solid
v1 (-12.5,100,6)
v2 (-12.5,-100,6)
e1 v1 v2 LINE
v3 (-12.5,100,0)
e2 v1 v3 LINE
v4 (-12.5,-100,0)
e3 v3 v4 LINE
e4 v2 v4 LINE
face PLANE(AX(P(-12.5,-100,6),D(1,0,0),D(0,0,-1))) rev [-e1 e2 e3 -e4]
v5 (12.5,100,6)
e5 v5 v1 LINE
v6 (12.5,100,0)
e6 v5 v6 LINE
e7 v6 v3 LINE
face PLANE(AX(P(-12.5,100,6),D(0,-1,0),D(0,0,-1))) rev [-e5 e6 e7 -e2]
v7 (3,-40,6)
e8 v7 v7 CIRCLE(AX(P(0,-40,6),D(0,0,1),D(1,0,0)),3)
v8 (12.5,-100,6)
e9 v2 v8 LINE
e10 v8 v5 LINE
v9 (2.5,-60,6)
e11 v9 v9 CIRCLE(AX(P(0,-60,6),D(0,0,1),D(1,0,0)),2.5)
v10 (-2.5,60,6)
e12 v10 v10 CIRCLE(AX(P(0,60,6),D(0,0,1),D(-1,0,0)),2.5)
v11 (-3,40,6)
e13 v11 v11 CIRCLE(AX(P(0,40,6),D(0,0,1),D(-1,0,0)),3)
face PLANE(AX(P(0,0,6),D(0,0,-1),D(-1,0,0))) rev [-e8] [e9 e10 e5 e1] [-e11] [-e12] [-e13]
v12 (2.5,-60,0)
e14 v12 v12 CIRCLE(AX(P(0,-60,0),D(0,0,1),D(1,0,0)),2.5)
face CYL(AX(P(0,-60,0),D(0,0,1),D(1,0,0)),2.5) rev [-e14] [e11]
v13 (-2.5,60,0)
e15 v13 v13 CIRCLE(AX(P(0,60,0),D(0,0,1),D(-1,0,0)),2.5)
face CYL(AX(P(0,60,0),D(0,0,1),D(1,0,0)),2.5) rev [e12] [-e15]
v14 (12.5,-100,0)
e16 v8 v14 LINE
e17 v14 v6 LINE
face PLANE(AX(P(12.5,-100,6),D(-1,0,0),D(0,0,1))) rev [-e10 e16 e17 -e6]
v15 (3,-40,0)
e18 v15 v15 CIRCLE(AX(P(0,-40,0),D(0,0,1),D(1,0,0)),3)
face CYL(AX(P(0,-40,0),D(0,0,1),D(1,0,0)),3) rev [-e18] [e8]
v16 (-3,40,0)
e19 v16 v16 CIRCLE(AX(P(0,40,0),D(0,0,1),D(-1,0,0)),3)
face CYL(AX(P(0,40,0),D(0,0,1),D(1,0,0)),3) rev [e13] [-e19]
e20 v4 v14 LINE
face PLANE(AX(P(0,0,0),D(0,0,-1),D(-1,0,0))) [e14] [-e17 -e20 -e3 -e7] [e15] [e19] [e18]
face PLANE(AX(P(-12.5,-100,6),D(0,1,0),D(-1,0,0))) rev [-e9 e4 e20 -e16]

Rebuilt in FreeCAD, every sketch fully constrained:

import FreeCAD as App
import Part
import Sketcher

V = App.Vector


def add_polygon(sketch, points):
    """Adds a closed chain of lines whose ends are joined by coincident constraints."""
    first, n = sketch.GeometryCount, len(points)
    for a, b in zip(points, points[1:] + points[:1]):
        sketch.addGeometry(Part.LineSegment(App.Vector(*a, 0), App.Vector(*b, 0)), False)
    for i in range(n):
        sketch.addConstraint(Sketcher.Constraint("Coincident", first + i, 2, first + (i + 1) % n, 1))

doc = App.newDocument("Part")
body = doc.addObject("PartDesign::Body", "Body")

sketch1 = body.newObject("Sketcher::SketchObject", "Sketch")
sketch1.AttachmentSupport = (doc.getObject("XY_Plane"), [""])
sketch1.MapMode = "FlatFace"
add_polygon(sketch1, [(-12.5, 100), (-12.5, -100), (12.5, -100), (12.5, 100)])
sketch1.addConstraint([
    Sketcher.Constraint("Vertical", 0),
    Sketcher.Constraint("Horizontal", 1),
    Sketcher.Constraint("Vertical", 2),
    Sketcher.Constraint("Horizontal", 3),
    Sketcher.Constraint("Symmetric", 0, 2, 2, 2, -1, 1),
    Sketcher.Constraint("DistanceX", 1, 1, 1, 2, 25.0),
    Sketcher.Constraint("DistanceY", 0, 2, 0, 1, 200.0),
])
pad1 = body.newObject("PartDesign::Pad", "Pad")
pad1.Profile = sketch1
pad1.Length = 6

sketch2 = body.newObject("Sketcher::SketchObject", "Sketch001")
sketch2.AttachmentSupport = (doc.getObject("XY_Plane"), [""])
sketch2.MapMode = "FlatFace"
sketch2.AttachmentOffset = App.Placement(V(0, 0, 6), App.Rotation())
sketch2.addGeometry([
    Part.Circle(V(0, -60, 0), V(0, 0, 1), 2.5),
    Part.Circle(V(0, 60, 0), V(0, 0, 1), 2.5),
    Part.Circle(V(0, -40, 0), V(0, 0, 1), 3),
    Part.Circle(V(0, 40, 0), V(0, 0, 1), 3),
], False)
sketch2.addConstraint([
    Sketcher.Constraint("Equal", 0, 1),
    Sketcher.Constraint("Equal", 2, 3),
    Sketcher.Constraint("Symmetric", 0, 3, 1, 3, -1, 1),
    Sketcher.Constraint("Symmetric", 2, 3, 3, 3, -1, 1),
    Sketcher.Constraint("PointOnObject", 0, 3, -2),
    Sketcher.Constraint("PointOnObject", 2, 3, -2),
    Sketcher.Constraint("Diameter", 0, 5.0),
    Sketcher.Constraint("Diameter", 2, 6.0),
    Sketcher.Constraint("DistanceY", 0, 3, -1, 1, 60.0),
    Sketcher.Constraint("DistanceY", 2, 3, -1, 1, 40.0),
])
pocket1 = body.newObject("PartDesign::Pocket", "Pocket")
pocket1.Profile = sketch2
pocket1.Length = 6

doc.recompute()
